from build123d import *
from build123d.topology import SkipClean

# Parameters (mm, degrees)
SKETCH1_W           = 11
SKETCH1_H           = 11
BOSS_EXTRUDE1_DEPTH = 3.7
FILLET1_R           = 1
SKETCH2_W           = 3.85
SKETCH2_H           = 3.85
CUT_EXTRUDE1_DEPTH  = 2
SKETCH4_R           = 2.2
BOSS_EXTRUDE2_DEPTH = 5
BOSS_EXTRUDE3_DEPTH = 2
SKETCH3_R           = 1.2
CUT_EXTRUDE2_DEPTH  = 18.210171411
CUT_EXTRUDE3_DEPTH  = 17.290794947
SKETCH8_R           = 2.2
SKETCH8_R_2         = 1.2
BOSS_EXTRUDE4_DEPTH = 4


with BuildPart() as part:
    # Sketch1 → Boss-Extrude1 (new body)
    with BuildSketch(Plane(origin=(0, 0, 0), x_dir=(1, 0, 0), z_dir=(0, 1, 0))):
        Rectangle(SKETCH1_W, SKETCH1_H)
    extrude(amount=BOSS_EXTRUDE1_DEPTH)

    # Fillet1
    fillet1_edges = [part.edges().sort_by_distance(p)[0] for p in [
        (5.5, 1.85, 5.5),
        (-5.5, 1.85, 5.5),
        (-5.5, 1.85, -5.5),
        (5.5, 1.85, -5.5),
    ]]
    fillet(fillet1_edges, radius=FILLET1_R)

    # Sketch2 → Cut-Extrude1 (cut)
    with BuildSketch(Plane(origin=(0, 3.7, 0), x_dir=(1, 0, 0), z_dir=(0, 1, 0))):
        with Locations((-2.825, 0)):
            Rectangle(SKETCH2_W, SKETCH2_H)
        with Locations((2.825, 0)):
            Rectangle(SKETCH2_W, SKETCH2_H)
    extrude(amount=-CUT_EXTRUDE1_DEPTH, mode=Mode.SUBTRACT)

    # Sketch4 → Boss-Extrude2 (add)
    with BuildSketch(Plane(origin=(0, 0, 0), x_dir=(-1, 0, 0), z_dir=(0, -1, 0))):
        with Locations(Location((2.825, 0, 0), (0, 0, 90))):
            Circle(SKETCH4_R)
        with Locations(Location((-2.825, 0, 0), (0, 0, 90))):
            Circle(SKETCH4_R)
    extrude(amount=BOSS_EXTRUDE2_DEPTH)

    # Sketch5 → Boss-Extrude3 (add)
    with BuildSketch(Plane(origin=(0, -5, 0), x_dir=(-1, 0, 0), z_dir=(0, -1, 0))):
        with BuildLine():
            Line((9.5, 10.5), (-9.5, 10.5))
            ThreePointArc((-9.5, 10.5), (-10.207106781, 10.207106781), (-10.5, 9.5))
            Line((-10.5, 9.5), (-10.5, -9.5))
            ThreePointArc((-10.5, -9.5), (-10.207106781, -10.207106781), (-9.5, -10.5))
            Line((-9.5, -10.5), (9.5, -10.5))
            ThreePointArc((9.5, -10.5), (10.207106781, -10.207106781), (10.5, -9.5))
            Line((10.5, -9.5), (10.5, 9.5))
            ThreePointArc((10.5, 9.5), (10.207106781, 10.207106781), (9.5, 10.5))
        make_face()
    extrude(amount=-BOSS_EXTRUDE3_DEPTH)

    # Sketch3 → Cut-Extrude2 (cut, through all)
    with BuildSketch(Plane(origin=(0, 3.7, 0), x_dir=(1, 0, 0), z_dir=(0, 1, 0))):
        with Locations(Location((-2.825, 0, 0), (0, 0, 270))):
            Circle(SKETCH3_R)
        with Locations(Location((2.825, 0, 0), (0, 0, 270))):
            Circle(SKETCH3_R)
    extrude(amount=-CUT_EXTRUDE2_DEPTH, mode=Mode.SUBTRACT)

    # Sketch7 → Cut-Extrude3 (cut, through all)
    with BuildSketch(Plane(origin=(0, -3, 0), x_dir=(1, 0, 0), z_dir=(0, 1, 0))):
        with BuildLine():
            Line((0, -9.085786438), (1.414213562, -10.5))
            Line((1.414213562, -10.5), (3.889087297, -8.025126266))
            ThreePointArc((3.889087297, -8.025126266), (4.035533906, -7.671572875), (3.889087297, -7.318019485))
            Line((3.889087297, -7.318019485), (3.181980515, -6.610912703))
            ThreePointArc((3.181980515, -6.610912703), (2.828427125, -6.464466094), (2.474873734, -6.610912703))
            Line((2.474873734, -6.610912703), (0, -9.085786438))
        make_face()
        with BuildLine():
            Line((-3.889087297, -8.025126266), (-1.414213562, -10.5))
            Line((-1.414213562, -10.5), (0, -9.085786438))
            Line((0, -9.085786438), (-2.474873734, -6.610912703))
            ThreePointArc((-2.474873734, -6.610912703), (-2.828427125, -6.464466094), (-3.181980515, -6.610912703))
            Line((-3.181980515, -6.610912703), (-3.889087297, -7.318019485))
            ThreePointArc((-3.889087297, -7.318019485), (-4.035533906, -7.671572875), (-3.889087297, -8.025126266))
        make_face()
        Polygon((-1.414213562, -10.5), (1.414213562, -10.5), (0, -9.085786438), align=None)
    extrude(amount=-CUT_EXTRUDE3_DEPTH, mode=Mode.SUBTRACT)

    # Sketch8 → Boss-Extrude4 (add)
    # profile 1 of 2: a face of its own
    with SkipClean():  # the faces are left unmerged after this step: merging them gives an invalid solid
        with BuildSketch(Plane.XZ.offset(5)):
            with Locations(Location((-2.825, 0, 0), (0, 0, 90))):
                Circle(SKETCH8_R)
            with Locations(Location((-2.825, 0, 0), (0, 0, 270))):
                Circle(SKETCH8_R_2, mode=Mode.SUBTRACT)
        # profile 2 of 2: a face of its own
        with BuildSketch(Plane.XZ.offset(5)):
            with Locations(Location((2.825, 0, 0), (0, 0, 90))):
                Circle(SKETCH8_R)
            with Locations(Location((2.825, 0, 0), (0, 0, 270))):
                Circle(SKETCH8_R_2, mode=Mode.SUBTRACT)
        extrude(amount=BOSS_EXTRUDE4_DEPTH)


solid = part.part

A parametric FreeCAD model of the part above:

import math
import FreeCAD as App
import Part
import Sketcher
from FreeCAD import Vector


def edges_at(feature, points):
    """Names of the edges that pass closest to the given points."""
    edges = feature.Shape.Edges
    near = lambda p: min(range(len(edges)), key=lambda i: edges[i].distToShape(Part.Vertex(*p))[0])
    return sorted({f"Edge{near(p) + 1}" for p in points})


def add_polygon(sketch, points):
    """Adds a closed chain of lines whose ends are joined by coincident constraints."""
    first, n = sketch.GeometryCount, len(points)
    for a, b in zip(points, points[1:] + points[:1]):
        sketch.addGeometry(Part.LineSegment(App.Vector(*a, 0), App.Vector(*b, 0)), False)
    for i in range(n):
        sketch.addConstraint(Sketcher.Constraint("Coincident", first + i, 2, first + (i + 1) % n, 1))

doc = App.newDocument("Part")
body = doc.addObject("PartDesign::Body", "Body")

sketch1 = body.newObject("Sketcher::SketchObject", "Sketch")
sketch1.AttachmentSupport = (doc.getObject("XZ_Plane"), [""])
sketch1.MapMode = "FlatFace"
add_polygon(sketch1, [(-6, -6), (-6, 6), (6, 6), (6, -6)])
sketch1.addConstraint([
    Sketcher.Constraint("Vertical", 0),
    Sketcher.Constraint("Horizontal", 1),
    Sketcher.Constraint("Vertical", 2),
    Sketcher.Constraint("Horizontal", 3),
    Sketcher.Constraint("Symmetric", 0, 2, 2, 2, -1, 1),
    Sketcher.Constraint("Equal", 3, 0),
    Sketcher.Constraint("DistanceX", 1, 1, 1, 2, 11.0),
])
pad1 = body.newObject("PartDesign::Pad", "Pad")
pad1.Profile = sketch1
pad1.Length = 3.7
pad1.Reversed = True
doc.recompute()

fillet = body.newObject("PartDesign::Fillet", "Fillet")
fillet.Base = (pad1, edges_at(pad1, [
    (5.5, 1.85, 5.5),
    (-5.5, 1.85, 5.5),
    (-5.5, 1.85, -5.5),
    (5.5, 1.85, -5.5),
]))
fillet.Radius = 1

sketch2 = body.newObject("Sketcher::SketchObject", "Sketch001")
sketch2.AttachmentSupport = (doc.getObject("XZ_Plane"), [""])
sketch2.MapMode = "FlatFace"
sketch2.AttachmentOffset = App.Placement(Vector(0, 0, -3.7), App.Rotation())
add_polygon(sketch2, [(-4.8, -1.9), (-4.8, 1.9), (-0.9, 1.9), (-0.9, -1.9)])
add_polygon(sketch2, [(0.9, -1.9), (0.9, 1.9), (4.8, 1.9), (4.8, -1.9)])
sketch2.addConstraint([
    Sketcher.Constraint("Vertical", 0),
    Sketcher.Constraint("Horizontal", 1),
    Sketcher.Constraint("Vertical", 2),
    Sketcher.Constraint("Horizontal", 3),
    Sketcher.Constraint("Vertical", 4),
    Sketcher.Constraint("Horizontal", 5),
    Sketcher.Constraint("Vertical", 6),
    Sketcher.Constraint("Horizontal", 7),
    Sketcher.Constraint("Symmetric", 2, 2, 4, 2, -1, 1),
    Sketcher.Constraint("Symmetric", 0, 2, 6, 2, -1, 1),
    Sketcher.Constraint("Horizontal", 1, 2, 4, 2),
    Sketcher.Constraint("Equal", 7, 0),
    Sketcher.Constraint("DistanceX", 1, 1, 1, 2, 3.85),
    Sketcher.Constraint("DistanceX", 1, 2, -1, 1, 0.9),
])
pocket1 = body.newObject("PartDesign::Pocket", "Pocket")
pocket1.Profile = sketch2
pocket1.Length = 2
pocket1.Reversed = True

sketch3 = body.newObject("Sketcher::SketchObject", "Sketch002")
sketch3.AttachmentSupport = (doc.getObject("XZ_Plane"), [""])
sketch3.MapMode = "FlatFace"
sketch3.addGeometry([
    Part.Circle(Vector(-2.8, 0, 0), Vector(0, 0, 1), 2.2),
    Part.Circle(Vector(2.8, 0, 0), Vector(0, 0, 1), 2.2),
], False)
sketch3.addConstraint([
    Sketcher.Constraint("Equal", 0, 1),
    Sketcher.Constraint("Symmetric", 0, 3, 1, 3, -1, 1),
    Sketcher.Constraint("PointOnObject", 0, 3, -1),
    Sketcher.Constraint("Diameter", 0, 4.4),
    Sketcher.Constraint("DistanceX", 0, 3, 1, 3, 5.65),
])
pad2 = body.newObject("PartDesign::Pad", "Pad001")
pad2.Profile = sketch3
pad2.Length = 5

sketch4 = body.newObject("Sketcher::SketchObject", "Sketch003")
sketch4.AttachmentSupport = (doc.getObject("XZ_Plane"), [""])
sketch4.MapMode = "FlatFace"
sketch4.AttachmentOffset = App.Placement(Vector(0, 0, 5), App.Rotation())
sketch4.addGeometry([
    Part.LineSegment(Vector(-9.5, -10.5, 0), Vector(9.5, -10.5, 0)),
    Part.ArcOfCircle(Part.Circle(Vector(9.5, -9.5, 0), Vector(0, 0, 1), 1), math.radians(-90), math.radians(0)),
    Part.LineSegment(Vector(10.5, -9.5, 0), Vector(10.5, 9.5, 0)),
    Part.ArcOfCircle(Part.Circle(Vector(9.5, 9.5, 0), Vector(0, 0, 1), 1), math.radians(0), math.radians(90)),
    Part.LineSegment(Vector(9.5, 10.5, 0), Vector(-9.5, 10.5, 0)),
    Part.ArcOfCircle(Part.Circle(Vector(-9.5, 9.5, 0), Vector(0, 0, 1), 1), math.radians(90), math.radians(180)),
    Part.LineSegment(Vector(-10.5, 9.5, 0), Vector(-10.5, -9.5, 0)),
    Part.ArcOfCircle(Part.Circle(Vector(-9.5, -9.5, 0), Vector(0, 0, 1), 1), math.radians(-180), math.radians(-90)),
], False)
sketch4.addConstraint([
    Sketcher.Constraint("Tangent", 0, 2, 1, 1),
    Sketcher.Constraint("Tangent", 1, 2, 2, 1),
    Sketcher.Constraint("Tangent", 2, 2, 3, 1),
    Sketcher.Constraint("Tangent", 3, 2, 4, 1),
    Sketcher.Constraint("Tangent", 4, 2, 5, 1),
    Sketcher.Constraint("Tangent", 5, 2, 6, 1),
    Sketcher.Constraint("Tangent", 6, 2, 7, 1),
    Sketcher.Constraint("Tangent", 7, 2, 0, 1),
    Sketcher.Constraint("Horizontal", 0),
    Sketcher.Constraint("Vertical", 2),
    Sketcher.Constraint("Horizontal", 4),
    Sketcher.Constraint("Vertical", 6),
    Sketcher.Constraint("Equal", 1, 3),
    Sketcher.Constraint("Equal", 3, 5),
    Sketcher.Constraint("Equal", 5, 7),
    Sketcher.Constraint("Symmetric", 1, 3, 5, 3, -1, 1),
    Sketcher.Constraint("Equal", 4, 2),
    Sketcher.Constraint("Radius", 1, 1.0),
    Sketcher.Constraint("DistanceX", 0, 1, 0, 2, 19.0),
])
pad3 = body.newObject("PartDesign::Pad", "Pad002")
pad3.Profile = sketch4
pad3.Length = 2
pad3.Reversed = True

sketch5 = body.newObject("Sketcher::SketchObject", "Sketch004")
sketch5.AttachmentSupport = (doc.getObject("XZ_Plane"), [""])
sketch5.MapMode = "FlatFace"
sketch5.AttachmentOffset = App.Placement(Vector(0, 0, -3.7), App.Rotation())
sketch5.addGeometry([
    Part.Circle(Vector(-2.8, 0, 0), Vector(0, 0, 1), 1.2),
    Part.Circle(Vector(2.8, 0, 0), Vector(0, 0, 1), 1.2),
], False)
sketch5.addConstraint([
    Sketcher.Constraint("Equal", 0, 1),
    Sketcher.Constraint("Symmetric", 0, 3, 1, 3, -1, 1),
    Sketcher.Constraint("PointOnObject", 0, 3, -1),
    Sketcher.Constraint("Diameter", 0, 2.4),
    Sketcher.Constraint("DistanceX", 0, 3, 1, 3, 5.65),
])
pocket2 = body.newObject("PartDesign::Pocket", "Pocket001")
pocket2.Profile = sketch5
pocket2.Type = "ThroughAll"
pocket2.Reversed = True

sketch6 = body.newObject("Sketcher::SketchObject", "Sketch005")
sketch6.AttachmentSupport = (doc.getObject("XZ_Plane"), [""])
sketch6.MapMode = "FlatFace"
sketch6.AttachmentOffset = App.Placement(Vector(0, 0, 3), App.Rotation())
sketch6.addGeometry([
    Part.LineSegment(Vector(1.4, 10.5, 0), Vector(3.9, 8, 0)),
    Part.ArcOfCircle(Part.Circle(Vector(3.5, 7.7, 0), Vector(0, 0, 1), 0.5), math.radians(-45), math.radians(45)),
    Part.LineSegment(Vector(3.9, 7.3, 0), Vector(3.2, 6.6, 0)),
    Part.ArcOfCircle(Part.Circle(Vector(2.8, 7, 0), Vector(0, 0, 1), 0.5), math.radians(-135), math.radians(-45)),
    Part.LineSegment(Vector(2.5, 6.6, 0), Vector(0, 9.1, 0)),
    Part.LineSegment(Vector(0, 9.1, 0), Vector(-2.5, 6.6, 0)),
    Part.ArcOfCircle(Part.Circle(Vector(-2.8, 7, 0), Vector(0, 0, 1), 0.5), math.radians(-135), math.radians(-45)),
    Part.LineSegment(Vector(-3.2, 6.6, 0), Vector(-3.9, 7.3, 0)),
    Part.ArcOfCircle(Part.Circle(Vector(-3.5, 7.7, 0), Vector(0, 0, 1), 0.5), math.radians(135), math.radians(225)),
    Part.LineSegment(Vector(-3.9, 8, 0), Vector(-1.4, 10.5, 0)),
    Part.LineSegment(Vector(-1.4, 10.5, 0), Vector(1.4, 10.5, 0)),
], False)
sketch6.addConstraint([
    Sketcher.Constraint("Tangent", 0, 2, 1, 2),
    Sketcher.Constraint("Tangent", 1, 1, 2, 1),
    Sketcher.Constraint("Tangent", 2, 2, 3, 2),
    Sketcher.Constraint("Tangent", 3, 1, 4, 1),
    Sketcher.Constraint("Coincident", 4, 2, 5, 1),
    Sketcher.Constraint("Tangent", 5, 2, 6, 2),
    Sketcher.Constraint("Tangent", 6, 1, 7, 1),
    Sketcher.Constraint("Tangent", 7, 2, 8, 2),
    Sketcher.Constraint("Tangent", 8, 1, 9, 1),
    Sketcher.Constraint("Coincident", 9, 2, 10, 1),
    Sketcher.Constraint("Coincident", 10, 2, 0, 1),
    Sketcher.Constraint("Horizontal", 10),
    Sketcher.Constraint("Equal", 1, 3),
    Sketcher.Constraint("Equal", 3, 6),
    Sketcher.Constraint("Equal", 6, 8),
    Sketcher.Constraint("Symmetric", 3, 3, 6, 3, -2),
    Sketcher.Constraint("Symmetric", 1, 3, 8, 3, -2),
    Sketcher.Constraint("PointOnObject", 4, 2, -2),
    Sketcher.Constraint("Perpendicular", 0, 2),
    Sketcher.Constraint("Perpendicular", 2, 4),
    Sketcher.Constraint("Perpendicular", 4, 5),
    Sketcher.Constraint("Perpendicular", 7, 9),
    Sketcher.Constraint("Equal", 0, 4),
    Sketcher.Constraint("Radius", 1, 0.5),
    Sketcher.Constraint("Distance", 2, 1.0),
    Sketcher.Constraint("Distance", 0, 3.5),
    Sketcher.Constraint("DistanceY", -1, 1, 9, 2, 10.5),
])
pocket3 = body.newObject("PartDesign::Pocket", "Pocket002")
pocket3.Profile = sketch6
pocket3.Type = "ThroughAll"
pocket3.Reversed = True

sketch7 = body.newObject("Sketcher::SketchObject", "Sketch006")
sketch7.AttachmentSupport = (doc.getObject("XZ_Plane"), [""])
sketch7.MapMode = "FlatFace"
sketch7.AttachmentOffset = App.Placement(Vector(0, 0, 5), App.Rotation())
sketch7.addGeometry([
    Part.Circle(Vector(-2.8, 0, 0), Vector(0, 0, 1), 2.2),
    Part.Circle(Vector(-2.8, 0, 0), Vector(0, 0, 1), 1.2),
    Part.Circle(Vector(2.8, 0, 0), Vector(0, 0, 1), 2.2),
    Part.Circle(Vector(2.8, 0, 0), Vector(0, 0, 1), 1.2),
], False)
sketch7.addConstraint([
    Sketcher.Constraint("Coincident", 1, 3, 0, 3),
    Sketcher.Constraint("Coincident", 3, 3, 2, 3),
    Sketcher.Constraint("Equal", 0, 2),
    Sketcher.Constraint("Equal", 1, 3),
    Sketcher.Constraint("Symmetric", 0, 3, 2, 3, -1, 1),
    Sketcher.Constraint("PointOnObject", 0, 3, -1),
    Sketcher.Constraint("Diameter", 0, 4.4),
    Sketcher.Constraint("Diameter", 1, 2.4),
    Sketcher.Constraint("DistanceX", 0, 3, 2, 3, 5.65),
])
pad4 = body.newObject("PartDesign::Pad", "Pad003")
pad4.Profile = sketch7
pad4.Length = 4

doc.recompute()
